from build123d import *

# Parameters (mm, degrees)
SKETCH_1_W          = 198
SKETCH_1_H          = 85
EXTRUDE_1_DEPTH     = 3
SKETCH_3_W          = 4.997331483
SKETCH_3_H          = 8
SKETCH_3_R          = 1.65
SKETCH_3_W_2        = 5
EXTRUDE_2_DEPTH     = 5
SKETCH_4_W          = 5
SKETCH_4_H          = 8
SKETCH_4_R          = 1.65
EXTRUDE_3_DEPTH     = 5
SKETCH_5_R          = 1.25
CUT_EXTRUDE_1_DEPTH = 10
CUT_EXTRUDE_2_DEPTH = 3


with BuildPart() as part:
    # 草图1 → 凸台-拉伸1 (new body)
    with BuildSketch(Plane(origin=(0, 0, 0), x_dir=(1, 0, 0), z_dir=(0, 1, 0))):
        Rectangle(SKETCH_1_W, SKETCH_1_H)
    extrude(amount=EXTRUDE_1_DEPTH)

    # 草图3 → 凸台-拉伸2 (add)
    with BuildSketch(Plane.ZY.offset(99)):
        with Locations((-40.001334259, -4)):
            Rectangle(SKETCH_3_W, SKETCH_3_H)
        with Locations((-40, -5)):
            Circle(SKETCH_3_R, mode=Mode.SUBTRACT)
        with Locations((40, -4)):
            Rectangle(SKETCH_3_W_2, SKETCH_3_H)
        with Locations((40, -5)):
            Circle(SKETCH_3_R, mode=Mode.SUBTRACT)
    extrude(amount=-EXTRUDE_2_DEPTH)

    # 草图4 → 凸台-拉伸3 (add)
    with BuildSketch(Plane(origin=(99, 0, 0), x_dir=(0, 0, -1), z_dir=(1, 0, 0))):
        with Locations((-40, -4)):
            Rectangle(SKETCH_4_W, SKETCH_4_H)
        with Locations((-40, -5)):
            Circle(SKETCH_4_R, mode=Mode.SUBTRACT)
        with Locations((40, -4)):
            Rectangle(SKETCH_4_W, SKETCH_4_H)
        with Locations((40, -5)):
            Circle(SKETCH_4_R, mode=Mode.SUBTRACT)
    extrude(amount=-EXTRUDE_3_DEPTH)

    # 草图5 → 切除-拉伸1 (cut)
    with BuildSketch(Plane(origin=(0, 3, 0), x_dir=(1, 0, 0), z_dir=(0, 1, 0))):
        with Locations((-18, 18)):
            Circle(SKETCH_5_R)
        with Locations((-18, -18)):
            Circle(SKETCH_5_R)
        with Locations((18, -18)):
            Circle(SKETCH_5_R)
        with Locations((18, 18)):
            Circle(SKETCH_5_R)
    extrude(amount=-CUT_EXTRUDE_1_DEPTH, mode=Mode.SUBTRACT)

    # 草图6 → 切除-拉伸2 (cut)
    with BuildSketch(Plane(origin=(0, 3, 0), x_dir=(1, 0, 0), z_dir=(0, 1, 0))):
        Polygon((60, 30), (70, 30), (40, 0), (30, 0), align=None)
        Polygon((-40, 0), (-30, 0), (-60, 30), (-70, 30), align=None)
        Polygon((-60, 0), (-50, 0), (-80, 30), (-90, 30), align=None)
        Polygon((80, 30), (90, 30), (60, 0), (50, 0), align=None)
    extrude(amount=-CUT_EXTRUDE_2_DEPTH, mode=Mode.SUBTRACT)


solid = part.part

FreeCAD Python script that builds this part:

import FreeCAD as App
import Part
import Sketcher


def add_polygon(sketch, points):
    """Adds a closed chain of lines whose ends are joined by coincident constraints."""
    first, n = sketch.GeometryCount, len(points)
    for a, b in zip(points, points[1:] + points[:1]):
        sketch.addGeometry(Part.LineSegment(App.Vector(*a, 0), App.Vector(*b, 0)), False)
    for i in range(n):
        sketch.addConstraint(Sketcher.Constraint("Coincident", first + i, 2, first + (i + 1) % n, 1))

doc = App.newDocument("Part")
params = doc.addObject("Spreadsheet::Sheet", "Params")
for row, (alias, value) in enumerate([
    ("sketch1_width", "198 mm"),
    ("sketch1_height", "85 mm"),
    ("pad1_length", "3 mm"),
    ("sketch2_diameter", "3.3 mm"),
    ("sketch2_width", "8 mm"),
    ("sketch2_height", "5 mm"),
    ("pad2_length", "5 mm"),
    ("sketch3_diameter", "3.3 mm"),
    ("sketch3_width", "8 mm"),
    ("sketch3_height", "5 mm"),
    ("pad3_length", "5 mm"),
    ("sketch4_diameter", "2.5 mm"),
    ("pocket1_length", "10 mm"),
    ("sketch5_width", "10 mm"),
    ("pocket2_length", "3 mm"),
], start=1):
    params.set(f"A{row}", alias)
    params.set(f"B{row}", "=" + value)
    params.setAlias(f"B{row}", alias)

body = doc.addObject("PartDesign::Body", "Body")

sketch1 = doc.addObject("Sketcher::SketchObject", "Sketch")
body.addObject(sketch1)
sketch1.AttachmentSupport = (doc.XZ_Plane, [""])
sketch1.MapMode = "FlatFace"
add_polygon(sketch1, [(-99, -42), (-99, 42), (99, 42), (99, -42)])
sketch1.addConstraint([
    Sketcher.Constraint("Vertical", 0),
    Sketcher.Constraint("Horizontal", 1),
    Sketcher.Constraint("Vertical", 2),
    Sketcher.Constraint("Horizontal", 3),
    Sketcher.Constraint("Symmetric", 0, 2, 2, 2, -1, 1),
    Sketcher.Constraint("DistanceX", 1, 1, 1, 2, 198.0),
    Sketcher.Constraint("DistanceY", 0, 1, 0, 2, 85.0),
])
sketch1.setExpression("Constraints[9]", "Params.sketch1_width")
sketch1.setExpression("Constraints[10]", "Params.sketch1_height")
pad1 = doc.addObject("PartDesign::Pad", "Pad")
body.addObject(pad1)
pad1.Profile = sketch1
pad1.setExpression("Length", "Params.pad1_length")
pad1.Reversed = True

sketch2 = doc.addObject("Sketcher::SketchObject", "Sketch001")
body.addObject(sketch2)
sketch2.AttachmentSupport = (doc.YZ_Plane, [""])
sketch2.MapMode = "FlatFace"
sketch2.AttachmentOffset = App.Placement(App.Vector(0, 0, -99), App.Rotation())
add_polygon(sketch2, [(0, -42.5), (-8, -42.5), (-8, -37.5), (0, -37.5)])
sketch2.addGeometry(Part.Circle(App.Vector(-5, -40, 0), App.Vector(0, 0, 1), 1.6), False)
add_polygon(sketch2, [(0, 37.5), (-8, 37.5), (-8, 42.5), (0, 42.5)])
sketch2.addGeometry(Part.Circle(App.Vector(-5, 40, 0), App.Vector(0, 0, 1), 1.6), False)
sketch2.addConstraint([
    Sketcher.Constraint("Horizontal", 0),
    Sketcher.Constraint("Vertical", 1),
    Sketcher.Constraint("Horizontal", 2),
    Sketcher.Constraint("Vertical", 3),
    Sketcher.Constraint("Horizontal", 5),
    Sketcher.Constraint("Vertical", 6),
    Sketcher.Constraint("Horizontal", 7),
    Sketcher.Constraint("Vertical", 8),
    Sketcher.Constraint("Equal", 4, 9),
    Sketcher.Constraint("Symmetric", 3, 2, 7, 2, -1, 1),
    Sketcher.Constraint("Symmetric", 4, 3, 9, 3, -1),
    Sketcher.Constraint("PointOnObject", 2, 2, -2),
    Sketcher.Constraint("Vertical", 1, 2, 5, 2),
    Sketcher.Constraint("Diameter", 4, 3.3),
    Sketcher.Constraint("DistanceX", 0, 2, 0, 1, 8.0),
    Sketcher.Constraint("DistanceY", 6, 1, 6, 2, 5.0),
    Sketcher.Constraint("DistanceX", 4, 3, -1, 1, 5.0),
    Sketcher.Constraint("DistanceY", 4, 3, -1, 1, 40.0),
    Sketcher.Constraint("DistanceY", 0, 2, 5, 2, 80.0),
    Sketcher.Constraint("DistanceY", 1, 1, 1, 2, 4.997331),
])
sketch2.setExpression("Constraints[21]", "Params.sketch2_diameter")
sketch2.setExpression("Constraints[22]", "Params.sketch2_width")
sketch2.setExpression("Constraints[23]", "Params.sketch2_height")
pad2 = doc.addObject("PartDesign::Pad", "Pad001")
body.addObject(pad2)
pad2.Profile = sketch2
pad2.setExpression("Length", "Params.pad2_length")

sketch3 = doc.addObject("Sketcher::SketchObject", "Sketch002")
body.addObject(sketch3)
sketch3.AttachmentSupport = (doc.YZ_Plane, [""])
sketch3.MapMode = "FlatFace"
sketch3.AttachmentOffset = App.Placement(App.Vector(0, 0, 99), App.Rotation())
add_polygon(sketch3, [(0, 42.5), (-8, 42.5), (-8, 37.5), (0, 37.5)])
sketch3.addGeometry(Part.Circle(App.Vector(-5, 40, 0), App.Vector(0, 0, 1), 1.6), False)
add_polygon(sketch3, [(0, -37.5), (-8, -37.5), (-8, -42.5), (0, -42.5)])
sketch3.addGeometry(Part.Circle(App.Vector(-5, -40, 0), App.Vector(0, 0, 1), 1.6), False)
sketch3.addConstraint([
    Sketcher.Constraint("Horizontal", 0),
    Sketcher.Constraint("Vertical", 1),
    Sketcher.Constraint("Horizontal", 2),
    Sketcher.Constraint("Vertical", 3),
    Sketcher.Constraint("Horizontal", 5),
    Sketcher.Constraint("Vertical", 6),
    Sketcher.Constraint("Horizontal", 7),
    Sketcher.Constraint("Vertical", 8),
    Sketcher.Constraint("Equal", 4, 9),
    Sketcher.Constraint("Symmetric", 3, 2, 7, 2, -1, 1),
    Sketcher.Constraint("Symmetric", 4, 3, 9, 3, -1),
    Sketcher.Constraint("Symmetric", 1, 2, 5, 2, -1),
    Sketcher.Constraint("PointOnObject", 2, 2, -2),
    Sketcher.Constraint("Diameter", 4, 3.3),
    Sketcher.Constraint("DistanceX", 0, 2, 0, 1, 8.0),
    Sketcher.Constraint("DistanceY", 1, 2, 1, 1, 5.0),
    Sketcher.Constraint("DistanceX", 4, 3, -1, 1, 5.0),
    Sketcher.Constraint("DistanceY", -1, 1, 4, 3, 40.0),
    Sketcher.Constraint("DistanceY", 5, 2, 1, 2, 75.0),
])
sketch3.setExpression("Constraints[21]", "Params.sketch3_diameter")
sketch3.setExpression("Constraints[22]", "Params.sketch3_width")
sketch3.setExpression("Constraints[23]", "Params.sketch3_height")
pad3 = doc.addObject("PartDesign::Pad", "Pad002")
body.addObject(pad3)
pad3.Profile = sketch3
pad3.setExpression("Length", "Params.pad3_length")
pad3.Reversed = True

sketch4 = doc.addObject("Sketcher::SketchObject", "Sketch003")
body.addObject(sketch4)
sketch4.AttachmentSupport = (doc.XZ_Plane, [""])
sketch4.MapMode = "FlatFace"
sketch4.AttachmentOffset = App.Placement(App.Vector(0, 0, -3), App.Rotation())
sketch4.addGeometry([
    Part.Circle(App.Vector(-18, -18, 0), App.Vector(0, 0, 1), 1.2),
    Part.Circle(App.Vector(-18, 18, 0), App.Vector(0, 0, 1), 1.2),
    Part.Circle(App.Vector(18, 18, 0), App.Vector(0, 0, 1), 1.2),
    Part.Circle(App.Vector(18, -18, 0), App.Vector(0, 0, 1), 1.2),
], False)
sketch4.addConstraint([
    Sketcher.Constraint("Equal", 0, 1),
    Sketcher.Constraint("Equal", 1, 2),
    Sketcher.Constraint("Equal", 2, 3),
    Sketcher.Constraint("Symmetric", 0, 3, 2, 3, -1, 1),
    Sketcher.Constraint("Symmetric", 1, 3, 3, 3, -1, 1),
    Sketcher.Constraint("Symmetric", 1, 3, 2, 3, -2),
    Sketcher.Constraint("Diameter", 0, 2.5),
    Sketcher.Constraint("DistanceX", 0, 3, -1, 1, 18.0),
    Sketcher.Constraint("DistanceY", 0, 3, -1, 1, 18.0),
])
sketch4.setExpression("Constraints[6]", "Params.sketch4_diameter")
pocket1 = doc.addObject("PartDesign::Pocket", "Pocket")
body.addObject(pocket1)
pocket1.Profile = sketch4
pocket1.setExpression("Length", "Params.pocket1_length")
pocket1.Reversed = True

sketch5 = doc.addObject("Sketcher::SketchObject", "Sketch004")
body.addObject(sketch5)
sketch5.AttachmentSupport = (doc.XZ_Plane, [""])
sketch5.MapMode = "FlatFace"
sketch5.AttachmentOffset = App.Placement(App.Vector(0, 0, -3), App.Rotation())
add_polygon(sketch5, [(70, -30), (60, -30), (30, 0), (40, 0)])
add_polygon(sketch5, [(-40, 0), (-30, 0), (-60, -30), (-70, -30)])
add_polygon(sketch5, [(-60, 0), (-50, 0), (-80, -30), (-90, -30)])
add_polygon(sketch5, [(90, -30), (80, -30), (50, 0), (60, 0)])
sketch5.addConstraint([
    Sketcher.Constraint("Horizontal", 0),
    Sketcher.Constraint("Horizontal", 2),
    Sketcher.Constraint("Horizontal", 4),
    Sketcher.Constraint("Horizontal", 6),
    Sketcher.Constraint("Horizontal", 8),
    Sketcher.Constraint("Horizontal", 10),
    Sketcher.Constraint("Horizontal", 12),
    Sketcher.Constraint("Horizontal", 14),
    Sketcher.Constraint("Symmetric", 1, 2, 4, 2, -1, 1),
    Sketcher.Constraint("Symmetric", 8, 2, 13, 2, -1, 1),
    Sketcher.Constraint("Symmetric", 0, 2, 5, 2, -2),
    Sketcher.Constraint("Symmetric", 2, 2, 7, 2, -2),
    Sketcher.Constraint("Symmetric", 9, 2, 12, 2, -2),
    Sketcher.Constraint("Symmetric", 11, 2, 14, 2, -2),
    Sketcher.Constraint("Parallel", 1, 3),
    Sketcher.Constraint("Perpendicular", 3, 5),
    Sketcher.Constraint("Parallel", 5, 7),
    Sketcher.Constraint("Parallel", 7, 9),
    Sketcher.Constraint("Parallel", 9, 11),
    Sketcher.Constraint("Parallel", 13, 15),
    Sketcher.Constraint("Horizontal", 6, 2, 9, 2),
    Sketcher.Constraint("Vertical", 5, 2, 11, 2),
    Sketcher.Constraint("Equal", 6, 8),
    Sketcher.Constraint("DistanceX", 0, 2, 0, 1, 10.0),
    Sketcher.Constraint("DistanceX", -1, 1, 0, 2, 60.0),
    Sketcher.Constraint("DistanceY", 0, 2, -1, 1, 30.0),
])
sketch5.setExpression("Constraints[39]", "Params.sketch5_width")
pocket2 = doc.addObject("PartDesign::Pocket", "Pocket001")
body.addObject(pocket2)
pocket2.Profile = sketch5
pocket2.setExpression("Length", "Params.pocket2_length")
pocket2.Reversed = True

doc.recompute()
